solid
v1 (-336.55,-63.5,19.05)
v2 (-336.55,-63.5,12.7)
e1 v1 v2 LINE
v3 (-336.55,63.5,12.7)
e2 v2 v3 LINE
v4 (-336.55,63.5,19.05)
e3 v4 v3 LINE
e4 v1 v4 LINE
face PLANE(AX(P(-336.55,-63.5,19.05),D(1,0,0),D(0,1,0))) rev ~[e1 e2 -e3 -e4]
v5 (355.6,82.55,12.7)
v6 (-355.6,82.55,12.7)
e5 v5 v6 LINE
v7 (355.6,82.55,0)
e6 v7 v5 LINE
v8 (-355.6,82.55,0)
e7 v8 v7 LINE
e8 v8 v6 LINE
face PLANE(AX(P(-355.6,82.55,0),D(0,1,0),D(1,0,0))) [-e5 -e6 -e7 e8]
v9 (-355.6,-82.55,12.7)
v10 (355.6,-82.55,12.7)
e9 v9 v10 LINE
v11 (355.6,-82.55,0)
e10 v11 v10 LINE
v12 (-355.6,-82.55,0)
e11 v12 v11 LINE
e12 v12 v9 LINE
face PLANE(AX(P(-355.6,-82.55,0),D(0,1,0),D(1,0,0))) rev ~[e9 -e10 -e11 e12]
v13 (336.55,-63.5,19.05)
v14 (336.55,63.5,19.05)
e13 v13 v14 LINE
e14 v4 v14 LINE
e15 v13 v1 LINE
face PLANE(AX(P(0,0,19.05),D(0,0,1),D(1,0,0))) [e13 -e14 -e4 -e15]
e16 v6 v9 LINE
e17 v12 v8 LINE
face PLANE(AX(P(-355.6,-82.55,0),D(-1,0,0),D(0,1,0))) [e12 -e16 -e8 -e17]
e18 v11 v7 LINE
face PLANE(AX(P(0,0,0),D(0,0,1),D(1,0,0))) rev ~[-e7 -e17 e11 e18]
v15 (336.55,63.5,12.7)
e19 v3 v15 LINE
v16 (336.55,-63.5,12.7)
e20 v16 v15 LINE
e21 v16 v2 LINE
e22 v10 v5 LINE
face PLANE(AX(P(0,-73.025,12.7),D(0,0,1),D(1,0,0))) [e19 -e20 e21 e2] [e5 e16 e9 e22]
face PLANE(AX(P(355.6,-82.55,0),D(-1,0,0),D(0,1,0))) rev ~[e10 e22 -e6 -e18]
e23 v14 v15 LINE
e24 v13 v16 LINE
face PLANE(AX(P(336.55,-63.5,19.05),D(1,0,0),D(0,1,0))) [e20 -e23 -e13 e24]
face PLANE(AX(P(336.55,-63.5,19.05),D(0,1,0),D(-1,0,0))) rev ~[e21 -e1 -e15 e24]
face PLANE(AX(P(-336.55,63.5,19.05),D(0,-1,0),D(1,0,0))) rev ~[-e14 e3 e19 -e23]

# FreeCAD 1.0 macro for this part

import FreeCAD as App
import Part
import Sketcher

V = App.Vector
Q = App.Units.Quantity


def add_polygon(sketch, points):
    """Adds a closed chain of lines whose ends are joined by coincident constraints."""
    first, n = sketch.GeometryCount, len(points)
    for a, b in zip(points, points[1:] + points[:1]):
        sketch.addGeometry(Part.LineSegment(App.Vector(*a, 0), App.Vector(*b, 0)), False)
    for i in range(n):
        sketch.addConstraint(Sketcher.Constraint("Coincident", first + i, 2, first + (i + 1) % n, 1))

doc = App.newDocument("Part")
body = doc.addObject("PartDesign::Body", "Body")

# Sketch on XY plane
sketch1 = doc.addObject("Sketcher::SketchObject", "Sketch")
body.addObject(sketch1)
sketch1.AttachmentSupport = (doc.XY_Plane, [""])
sketch1.MapMode = "FlatFace"
add_polygon(sketch1, [(-356, 83), (-356, -83), (356, -83), (356, 83)])  # lines 0-3
sketch1.addConstraint(Sketcher.Constraint("Vertical", 0))
sketch1.addConstraint(Sketcher.Constraint("Horizontal", 1))
sketch1.addConstraint(Sketcher.Constraint("Vertical", 2))
sketch1.addConstraint(Sketcher.Constraint("Horizontal", 3))
sketch1.addConstraint(Sketcher.Constraint("Symmetric", 0, 2, 2, 2, -1, 1))
sketch1.addConstraint(Sketcher.Constraint("DistanceX", 1, 1, 1, 2, Q("28 in")))
sketch1.addConstraint(Sketcher.Constraint("DistanceY", 0, 2, 0, 1, Q("6.5 in")))
pad1 = doc.addObject("PartDesign::Pad", "Pad")
body.addObject(pad1)
pad1.Profile = sketch1
pad1.Length = Q("0.75 in")

# Sketch on XY plane
sketch2 = doc.addObject("Sketcher::SketchObject", "Sketch001")
body.addObject(sketch2)
sketch2.AttachmentSupport = (doc.XY_Plane, [""])
sketch2.MapMode = "FlatFace"
sketch2.AttachmentOffset = App.Placement(V(0, 0, 0.75 * 25.4), App.Rotation())
add_polygon(sketch2, [(-356, -83), (356, -83), (356, 83), (-356, 83)])  # lines 0-3
add_polygon(sketch2, [(337, -64), (-337, -64), (-337, 64), (337, 64)])  # lines 4-7
sketch2.addConstraint(Sketcher.Constraint("Horizontal", 0))
sketch2.addConstraint(Sketcher.Constraint("Vertical", 1))
sketch2.addConstraint(Sketcher.Constraint("Horizontal", 2))
sketch2.addConstraint(Sketcher.Constraint("Vertical", 3))
sketch2.addConstraint(Sketcher.Constraint("Horizontal", 4))
sketch2.addConstraint(Sketcher.Constraint("Vertical", 5))
sketch2.addConstraint(Sketcher.Constraint("Horizontal", 6))
sketch2.addConstraint(Sketcher.Constraint("Vertical", 7))
sketch2.addConstraint(Sketcher.Constraint("Symmetric", 0, 2, 2, 2, -1, 1))
sketch2.addConstraint(Sketcher.Constraint("Symmetric", 4, 2, 6, 2, -1, 1))
sketch2.addConstraint(Sketcher.Constraint("DistanceX", 0, 1, 0, 2, Q("28 in")))
sketch2.addConstraint(Sketcher.Constraint("DistanceY", 5, 1, 5, 2, Q("5 in")))
sketch2.addConstraint(Sketcher.Constraint("DistanceX", 4, 2, 4, 1, Q("26.5 in")))
sketch2.addConstraint(Sketcher.Constraint("DistanceY", 1, 1, 1, 2, Q("6.5 in")))
pocket1 = doc.addObject("PartDesign::Pocket", "Pocket")
body.addObject(pocket1)
pocket1.Profile = sketch2
pocket1.Length = Q("0.25 in")

doc.recompute()
